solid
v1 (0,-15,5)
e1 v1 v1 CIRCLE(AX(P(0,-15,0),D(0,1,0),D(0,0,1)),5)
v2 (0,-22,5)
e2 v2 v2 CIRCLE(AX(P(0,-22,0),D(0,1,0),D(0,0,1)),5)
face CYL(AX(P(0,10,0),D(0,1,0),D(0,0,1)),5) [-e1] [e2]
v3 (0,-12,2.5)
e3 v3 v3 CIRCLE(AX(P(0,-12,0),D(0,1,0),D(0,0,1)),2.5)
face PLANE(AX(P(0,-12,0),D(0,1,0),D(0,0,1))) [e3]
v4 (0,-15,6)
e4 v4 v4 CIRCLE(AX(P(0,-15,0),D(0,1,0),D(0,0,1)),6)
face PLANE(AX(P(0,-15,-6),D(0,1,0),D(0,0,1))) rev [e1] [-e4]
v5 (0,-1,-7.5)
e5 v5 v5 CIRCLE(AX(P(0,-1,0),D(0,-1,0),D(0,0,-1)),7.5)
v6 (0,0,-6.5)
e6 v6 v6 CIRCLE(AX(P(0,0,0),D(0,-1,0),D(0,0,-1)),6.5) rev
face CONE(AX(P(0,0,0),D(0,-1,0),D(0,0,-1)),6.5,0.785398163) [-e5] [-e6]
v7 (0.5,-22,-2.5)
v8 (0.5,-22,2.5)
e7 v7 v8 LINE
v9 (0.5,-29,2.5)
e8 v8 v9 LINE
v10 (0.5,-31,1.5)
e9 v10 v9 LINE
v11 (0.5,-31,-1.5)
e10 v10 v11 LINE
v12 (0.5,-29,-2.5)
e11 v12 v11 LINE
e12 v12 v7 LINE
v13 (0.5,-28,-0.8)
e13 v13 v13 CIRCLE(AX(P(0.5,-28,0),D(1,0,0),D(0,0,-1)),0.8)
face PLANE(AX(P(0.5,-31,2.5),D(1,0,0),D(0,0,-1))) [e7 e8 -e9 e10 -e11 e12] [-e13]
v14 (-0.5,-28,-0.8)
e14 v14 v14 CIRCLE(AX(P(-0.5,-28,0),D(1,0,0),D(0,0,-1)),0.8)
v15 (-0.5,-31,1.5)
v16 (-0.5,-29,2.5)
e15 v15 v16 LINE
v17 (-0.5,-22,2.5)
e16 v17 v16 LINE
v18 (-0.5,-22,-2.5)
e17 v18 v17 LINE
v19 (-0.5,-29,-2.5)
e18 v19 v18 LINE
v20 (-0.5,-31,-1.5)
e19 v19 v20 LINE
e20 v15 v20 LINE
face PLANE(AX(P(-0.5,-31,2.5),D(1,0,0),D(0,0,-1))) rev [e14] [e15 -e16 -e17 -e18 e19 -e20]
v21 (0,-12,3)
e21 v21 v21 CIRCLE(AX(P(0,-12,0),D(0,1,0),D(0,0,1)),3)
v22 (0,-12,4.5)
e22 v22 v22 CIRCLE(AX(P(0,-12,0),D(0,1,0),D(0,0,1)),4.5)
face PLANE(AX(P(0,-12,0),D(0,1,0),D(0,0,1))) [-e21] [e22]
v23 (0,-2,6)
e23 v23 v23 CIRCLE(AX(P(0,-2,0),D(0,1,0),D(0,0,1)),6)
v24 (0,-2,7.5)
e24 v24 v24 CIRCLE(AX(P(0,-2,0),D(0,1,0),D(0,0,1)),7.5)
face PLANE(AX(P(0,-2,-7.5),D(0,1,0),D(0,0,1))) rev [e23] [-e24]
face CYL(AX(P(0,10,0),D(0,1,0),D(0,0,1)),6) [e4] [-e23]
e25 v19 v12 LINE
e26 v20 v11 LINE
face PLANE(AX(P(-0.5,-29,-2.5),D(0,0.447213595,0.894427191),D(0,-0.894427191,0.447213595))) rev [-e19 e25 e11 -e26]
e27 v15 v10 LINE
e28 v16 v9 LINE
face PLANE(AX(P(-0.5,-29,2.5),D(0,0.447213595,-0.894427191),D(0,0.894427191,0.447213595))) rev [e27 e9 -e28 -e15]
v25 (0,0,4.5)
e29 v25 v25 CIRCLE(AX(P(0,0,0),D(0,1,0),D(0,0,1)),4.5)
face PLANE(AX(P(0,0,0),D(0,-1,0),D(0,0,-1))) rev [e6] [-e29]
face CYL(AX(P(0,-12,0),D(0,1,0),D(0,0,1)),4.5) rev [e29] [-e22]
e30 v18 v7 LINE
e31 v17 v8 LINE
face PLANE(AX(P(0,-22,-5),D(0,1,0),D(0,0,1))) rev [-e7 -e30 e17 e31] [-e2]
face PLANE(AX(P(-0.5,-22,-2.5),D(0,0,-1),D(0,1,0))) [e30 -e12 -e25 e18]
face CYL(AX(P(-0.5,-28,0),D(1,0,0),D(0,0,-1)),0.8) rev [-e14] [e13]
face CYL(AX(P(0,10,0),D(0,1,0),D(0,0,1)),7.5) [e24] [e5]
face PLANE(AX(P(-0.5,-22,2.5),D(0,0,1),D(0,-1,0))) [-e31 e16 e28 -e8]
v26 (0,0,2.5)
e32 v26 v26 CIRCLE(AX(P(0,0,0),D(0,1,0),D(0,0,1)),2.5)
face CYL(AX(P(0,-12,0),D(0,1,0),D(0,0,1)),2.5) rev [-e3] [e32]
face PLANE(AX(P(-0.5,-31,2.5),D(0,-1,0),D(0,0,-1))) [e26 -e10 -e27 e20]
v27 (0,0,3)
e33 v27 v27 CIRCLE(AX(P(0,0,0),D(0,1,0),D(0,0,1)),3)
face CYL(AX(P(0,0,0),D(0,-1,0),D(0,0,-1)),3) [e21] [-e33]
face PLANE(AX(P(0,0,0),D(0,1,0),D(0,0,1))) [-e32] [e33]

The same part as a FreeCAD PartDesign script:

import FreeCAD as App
import Part
import Sketcher
from FreeCAD import Vector
Q = App.Units.Quantity


def edges_at(feature, points):
    """Names of the edges that pass closest to the given points."""
    edges = feature.Shape.Edges
    near = lambda p: min(range(len(edges)), key=lambda i: edges[i].distToShape(Part.Vertex(*p))[0])
    return sorted({f"Edge{near(p) + 1}" for p in points})

doc = App.newDocument("Part")
params = doc.addObject("Spreadsheet::Sheet", "Params")
for row, (alias, value) in enumerate([
    ("sketch1_width", "22 mm"),
    ("sketch1_width2", "7 mm"),
    ("sketch1_width3", "13 mm"),
    ("sketch1_height", "5 mm"),
    ("sketch1_height2", "1 mm"),
    ("revolution_angle", "360 deg"),
    ("chamfer_size", "1 mm"),
    ("sketch2_diameter", "9 mm"),
    ("pocket1_length", "12 mm"),
    ("sketch3_diameter", "6 mm"),
    ("pad1_length", "12 mm"),
    ("sketch4_diameter", "5 mm"),
    ("pocket2_length", "12 mm"),
    ("sketch5_width", "9 mm"),
    ("sketch5_height", "5 mm"),
    ("pad2_length", "1 mm"),
    ("sketch6_width", "2 mm"),
    ("sketch6_height", "1 mm"),
    ("pocket3_length", "1 mm"),
    ("sketch7_width", "2 mm"),
    ("sketch7_height", "1 mm"),
    ("pocket4_length", "1 mm"),
    ("sketch8_diameter", "1.6 mm"),
    ("pocket5_length", "1 mm"),
], start=1):
    params.set(f"A{row}", alias)
    params.set(f"B{row}", "=" + value)
    params.setAlias(f"B{row}", alias)

body = doc.addObject("PartDesign::Body", "Body")

sketch1 = body.newObject("Sketcher::SketchObject", "Sketch")
sketch1.AttachmentSupport = (doc.getObject("YZ_Plane"), [""])
sketch1.MapMode = "FlatFace"
sketch1.addGeometry([
    Part.LineSegment(Vector(0, -7.5, 0), Vector(0, 0, 0)),
    Part.LineSegment(Vector(0, 0, 0), Vector(-22, 0, 0)),
    Part.LineSegment(Vector(-22, 0, 0), Vector(-22, -5, 0)),
    Part.LineSegment(Vector(-22, -5, 0), Vector(-15, -5, 0)),
    Part.LineSegment(Vector(-15, -5, 0), Vector(-15, -6, 0)),
    Part.LineSegment(Vector(-15, -6, 0), Vector(-2, -6, 0)),
    Part.LineSegment(Vector(-2, -6, 0), Vector(-2, -7.5, 0)),
    Part.LineSegment(Vector(-2, -7.5, 0), Vector(0, -7.5, 0)),
], False)
sketch1.addConstraint([
    Sketcher.Constraint("Coincident", 0, 2, 1, 1),
    Sketcher.Constraint("Coincident", 1, 2, 2, 1),
    Sketcher.Constraint("Coincident", 2, 2, 3, 1),
    Sketcher.Constraint("Coincident", 3, 2, 4, 1),
    Sketcher.Constraint("Coincident", 4, 2, 5, 1),
    Sketcher.Constraint("Coincident", 5, 2, 6, 1),
    Sketcher.Constraint("Coincident", 6, 2, 7, 1),
    Sketcher.Constraint("Coincident", 7, 2, 0, 1),
    Sketcher.Constraint("Vertical", 0),
    Sketcher.Constraint("Horizontal", 1),
    Sketcher.Constraint("Vertical", 2),
    Sketcher.Constraint("Horizontal", 3),
    Sketcher.Constraint("Vertical", 4),
    Sketcher.Constraint("Horizontal", 5),
    Sketcher.Constraint("Vertical", 6),
    Sketcher.Constraint("Horizontal", 7),
    Sketcher.Constraint("Coincident", 0, 2, -1, 1),
    Sketcher.Constraint("DistanceX", 1, 2, 1, 1, Q("22 mm")),
    Sketcher.Constraint("DistanceX", 3, 1, 3, 2, Q("7 mm")),
    Sketcher.Constraint("DistanceX", 5, 1, 5, 2, Q("13 mm")),
    Sketcher.Constraint("DistanceY", 2, 2, 2, 1, Q("5 mm")),
    Sketcher.Constraint("DistanceY", 4, 2, 4, 1, Q("1 mm")),
    Sketcher.Constraint("DistanceY", 0, 1, 0, 2, Q("7.5 mm")),
])
sketch1.setExpression("Constraints[17]", "Params.sketch1_width")
sketch1.setExpression("Constraints[18]", "Params.sketch1_width2")
sketch1.setExpression("Constraints[19]", "Params.sketch1_width3")
sketch1.setExpression("Constraints[20]", "Params.sketch1_height")
sketch1.setExpression("Constraints[21]", "Params.sketch1_height2")
revolution = body.newObject("PartDesign::Revolution", "Revolution")
revolution.Profile = sketch1
revolution.ReferenceAxis = (sketch1, ["H_Axis"])
revolution.setExpression("Angle", "Params.revolution_angle")
doc.recompute()

chamfer = body.newObject("PartDesign::Chamfer", "Chamfer")
chamfer.Base = (revolution, edges_at(revolution, [(0, 0, -7.5)]))
chamfer.setExpression("Size", "Params.chamfer_size")

sketch2 = body.newObject("Sketcher::SketchObject", "Sketch001")
sketch2.AttachmentSupport = (doc.getObject("XZ_Plane"), [""])
sketch2.MapMode = "FlatFace"
sketch2.addGeometry(Part.Circle(Vector(0, 0, 0), Vector(0, 0, 1), 4.5), False)
sketch2.addConstraint([
    Sketcher.Constraint("Coincident", 0, 3, -1, 1),
    Sketcher.Constraint("Diameter", 0, Q("9 mm")),
])
sketch2.setExpression("Constraints[1]", "Params.sketch2_diameter")
pocket1 = body.newObject("PartDesign::Pocket", "Pocket")
pocket1.Profile = sketch2
pocket1.setExpression("Length", "Params.pocket1_length")
pocket1.Reversed = True

sketch3 = body.newObject("Sketcher::SketchObject", "Sketch002")
sketch3.AttachmentSupport = (doc.getObject("XZ_Plane"), [""])
sketch3.MapMode = "FlatFace"
sketch3.AttachmentOffset = App.Placement(Vector(0, 0, 12), App.Rotation())
sketch3.addGeometry(Part.Circle(Vector(0, 0, 0), Vector(0, 0, 1), 3), False)
sketch3.addConstraint([
    Sketcher.Constraint("Coincident", 0, 3, -1, 1),
    Sketcher.Constraint("Diameter", 0, Q("6 mm")),
])
sketch3.setExpression("Constraints[1]", "Params.sketch3_diameter")
pad1 = body.newObject("PartDesign::Pad", "Pad")
pad1.Profile = sketch3
pad1.setExpression("Length", "Params.pad1_length")
pad1.Reversed = True

sketch4 = body.newObject("Sketcher::SketchObject", "Sketch003")
sketch4.AttachmentSupport = (doc.getObject("XZ_Plane"), [""])
sketch4.MapMode = "FlatFace"
sketch4.addGeometry(Part.Circle(Vector(0, 0, 0), Vector(0, 0, 1), 2.5), False)
sketch4.addConstraint([
    Sketcher.Constraint("Coincident", 0, 3, -1, 1),
    Sketcher.Constraint("Diameter", 0, Q("5 mm")),
])
sketch4.setExpression("Constraints[1]", "Params.sketch4_diameter")
pocket2 = body.newObject("PartDesign::Pocket", "Pocket001")
pocket2.Profile = sketch4
pocket2.setExpression("Length", "Params.pocket2_length")
pocket2.Reversed = True

sketch5 = body.newObject("Sketcher::SketchObject", "Sketch004")
sketch5.AttachmentSupport = (doc.getObject("YZ_Plane"), [""])
sketch5.MapMode = "FlatFace"
sketch5.AttachmentOffset = App.Placement(Vector(0, 0, 0.5), App.Rotation())
sketch5.addGeometry([
    Part.LineSegment(Vector(-22, 2, 0), Vector(-31, 2, 0)),
    Part.LineSegment(Vector(-31, 2, 0), Vector(-31, -2, 0)),
    Part.LineSegment(Vector(-31, -2, 0), Vector(-22, -2, 0)),
    Part.LineSegment(Vector(-22, -2, 0), Vector(-22, 2, 0)),
], False)
sketch5.addConstraint([
    Sketcher.Constraint("Coincident", 0, 2, 1, 1),
    Sketcher.Constraint("Coincident", 1, 2, 2, 1),
    Sketcher.Constraint("Coincident", 2, 2, 3, 1),
    Sketcher.Constraint("Coincident", 3, 2, 0, 1),
    Sketcher.Constraint("Horizontal", 0),
    Sketcher.Constraint("Vertical", 1),
    Sketcher.Constraint("Horizontal", 2),
    Sketcher.Constraint("Vertical", 3),
    Sketcher.Constraint("DistanceX", 0, 2, 0, 1, Q("9 mm")),
    Sketcher.Constraint("DistanceY", 1, 2, 1, 1, Q("5 mm")),
    Sketcher.Constraint("DistanceX", 0, 2, -1, 1, Q("31 mm")),
    Sketcher.Constraint("DistanceY", -1, 1, 0, 2, Q("2.5 mm")),
])
sketch5.setExpression("Constraints[8]", "Params.sketch5_width")
sketch5.setExpression("Constraints[9]", "Params.sketch5_height")
pad2 = body.newObject("PartDesign::Pad", "Pad001")
pad2.Profile = sketch5
pad2.setExpression("Length", "Params.pad2_length")
pad2.Reversed = True

sketch6 = body.newObject("Sketcher::SketchObject", "Sketch005")
sketch6.AttachmentSupport = (doc.getObject("YZ_Plane"), [""])
sketch6.MapMode = "FlatFace"
sketch6.AttachmentOffset = App.Placement(Vector(0, 0, 0.5), App.Rotation())
sketch6.addGeometry([
    Part.LineSegment(Vector(-31, 1.5, 0), Vector(-29, 2.5, 0)),
    Part.LineSegment(Vector(-29, 2.5, 0), Vector(-31, 2.5, 0)),
    Part.LineSegment(Vector(-31, 2.5, 0), Vector(-31, 1.5, 0)),
], False)
sketch6.addConstraint([
    Sketcher.Constraint("Coincident", 0, 2, 1, 1),
    Sketcher.Constraint("Coincident", 1, 2, 2, 1),
    Sketcher.Constraint("Coincident", 2, 2, 0, 1),
    Sketcher.Constraint("Horizontal", 1),
    Sketcher.Constraint("Vertical", 2),
    Sketcher.Constraint("DistanceX", 1, 2, 1, 1, Q("2 mm")),
    Sketcher.Constraint("DistanceY", 2, 2, 2, 1, Q("1 mm")),
    Sketcher.Constraint("DistanceX", 0, 2, -1, 1, Q("29 mm")),
    Sketcher.Constraint("DistanceY", -1, 1, 0, 2, Q("2.5 mm")),
])
sketch6.setExpression("Constraints[5]", "Params.sketch6_width")
sketch6.setExpression("Constraints[6]", "Params.sketch6_height")
pocket3 = body.newObject("PartDesign::Pocket", "Pocket002")
pocket3.Profile = sketch6
pocket3.setExpression("Length", "Params.pocket3_length")

sketch7 = body.newObject("Sketcher::SketchObject", "Sketch006")
sketch7.AttachmentSupport = (doc.getObject("YZ_Plane"), [""])
sketch7.MapMode = "FlatFace"
sketch7.AttachmentOffset = App.Placement(Vector(0, 0, 0.5), App.Rotation())
sketch7.addGeometry([
    Part.LineSegment(Vector(-31, -2.5, 0), Vector(-29, -2.5, 0)),
    Part.LineSegment(Vector(-29, -2.5, 0), Vector(-31, -1.5, 0)),
    Part.LineSegment(Vector(-31, -1.5, 0), Vector(-31, -2.5, 0)),
], False)
sketch7.addConstraint([
    Sketcher.Constraint("Coincident", 0, 2, 1, 1),
    Sketcher.Constraint("Coincident", 1, 2, 2, 1),
    Sketcher.Constraint("Coincident", 2, 2, 0, 1),
    Sketcher.Constraint("Horizontal", 0),
    Sketcher.Constraint("Vertical", 2),
    Sketcher.Constraint("DistanceX", 0, 1, 0, 2, Q("2 mm")),
    Sketcher.Constraint("DistanceY", 2, 2, 2, 1, Q("1 mm")),
    Sketcher.Constraint("DistanceX", 0, 2, -1, 1, Q("29 mm")),
    Sketcher.Constraint("DistanceY", 0, 2, -1, 1, Q("2.5 mm")),
])
sketch7.setExpression("Constraints[5]", "Params.sketch7_width")
sketch7.setExpression("Constraints[6]", "Params.sketch7_height")
pocket4 = body.newObject("PartDesign::Pocket", "Pocket003")
pocket4.Profile = sketch7
pocket4.setExpression("Length", "Params.pocket4_length")

sketch8 = body.newObject("Sketcher::SketchObject", "Sketch007")
sketch8.AttachmentSupport = (doc.getObject("YZ_Plane"), [""])
sketch8.MapMode = "FlatFace"
sketch8.AttachmentOffset = App.Placement(Vector(0, 0, 0.5), App.Rotation())
sketch8.addGeometry(Part.Circle(Vector(-28, 0, 0), Vector(0, 0, 1), 0.8), False)
sketch8.addConstraint([
    Sketcher.Constraint("PointOnObject", 0, 3, -1),
    Sketcher.Constraint("Diameter", 0, Q("1.6 mm")),
    Sketcher.Constraint("DistanceX", 0, 3, -1, 1, Q("28 mm")),
])
sketch8.setExpression("Constraints[1]", "Params.sketch8_diameter")
pocket5 = body.newObject("PartDesign::Pocket", "Pocket004")
pocket5.Profile = sketch8
pocket5.setExpression("Length", "Params.pocket5_length")

doc.recompute()
